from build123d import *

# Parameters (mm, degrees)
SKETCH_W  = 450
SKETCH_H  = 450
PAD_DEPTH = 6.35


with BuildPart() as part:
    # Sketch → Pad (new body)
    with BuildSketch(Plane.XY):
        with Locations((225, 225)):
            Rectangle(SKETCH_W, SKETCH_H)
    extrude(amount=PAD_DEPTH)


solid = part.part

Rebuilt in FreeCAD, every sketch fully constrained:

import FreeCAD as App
import Part
import Sketcher
from FreeCAD import Vector
Q = App.Units.Quantity


def add_polygon(sketch, points):
    """Adds a closed chain of lines whose ends are joined by coincident constraints."""
    first, n = sketch.GeometryCount, len(points)
    for a, b in zip(points, points[1:] + points[:1]):
        sketch.addGeometry(Part.LineSegment(App.Vector(*a, 0), App.Vector(*b, 0)), False)
    for i in range(n):
        sketch.addConstraint(Sketcher.Constraint("Coincident", first + i, 2, first + (i + 1) % n, 1))

doc = App.newDocument("Part")
params = doc.addObject("Spreadsheet::Sheet", "Params")
for row, (alias, value) in enumerate([
    ("sketch1_width", "450 mm"),
    ("pad1_length", "6.35 mm"),
], start=1):
    params.set(f"A{row}", alias)
    params.set(f"B{row}", "=" + value)
    params.setAlias(f"B{row}", alias)

body = doc.addObject("PartDesign::Body", "Body")

# Sketch on XY plane
sketch1 = body.newObject("Sketcher::SketchObject", "Sketch")
sketch1.AttachmentSupport = (doc.getObject("XY_Plane"), [""])
sketch1.MapMode = "FlatFace"
add_polygon(sketch1, [(0, 450), (0, 0), (450, 0), (450, 450)])  # lines 0-3
sketch1.addConstraint(Sketcher.Constraint("Vertical", 0))
sketch1.addConstraint(Sketcher.Constraint("Horizontal", 1))
sketch1.addConstraint(Sketcher.Constraint("Vertical", 2))
sketch1.addConstraint(Sketcher.Constraint("Horizontal", 3))
sketch1.addConstraint(Sketcher.Constraint("Coincident", 0, 2, -1, 1))
sketch1.addConstraint(Sketcher.Constraint("Equal", 3, 0))
sketch1.addConstraint(Sketcher.Constraint("DistanceX", 1, 1, 1, 2, Q("450 mm")))
sketch1.setExpression("Constraints[10]", "Params.sketch1_width")
pad1 = body.newObject("PartDesign::Pad", "Pad")
pad1.Profile = sketch1
pad1.setExpression("Length", "Params.pad1_length")

doc.recompute()
